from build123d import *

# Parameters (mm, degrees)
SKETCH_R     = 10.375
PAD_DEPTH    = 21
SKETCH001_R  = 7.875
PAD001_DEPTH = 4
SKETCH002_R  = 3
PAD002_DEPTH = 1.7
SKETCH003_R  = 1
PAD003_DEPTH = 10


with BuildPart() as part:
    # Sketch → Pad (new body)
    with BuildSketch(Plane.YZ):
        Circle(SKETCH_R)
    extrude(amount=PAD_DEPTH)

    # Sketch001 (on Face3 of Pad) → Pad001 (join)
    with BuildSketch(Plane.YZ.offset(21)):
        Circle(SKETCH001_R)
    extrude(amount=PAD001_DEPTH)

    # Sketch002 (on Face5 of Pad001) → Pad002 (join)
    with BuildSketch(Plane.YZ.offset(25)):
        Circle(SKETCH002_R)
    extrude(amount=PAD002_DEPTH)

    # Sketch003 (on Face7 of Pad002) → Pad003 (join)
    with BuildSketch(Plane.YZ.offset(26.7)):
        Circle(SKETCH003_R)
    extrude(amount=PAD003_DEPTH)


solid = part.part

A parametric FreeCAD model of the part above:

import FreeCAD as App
import Part
import Sketcher
from FreeCAD import Vector

doc = App.newDocument("Part")
body = doc.addObject("PartDesign::Body", "Body")

sketch1 = doc.addObject("Sketcher::SketchObject", "Sketch")
body.addObject(sketch1)
sketch1.AttachmentSupport = (doc.YZ_Plane, [""])
sketch1.MapMode = "FlatFace"
sketch1.addGeometry(Part.Circle(Vector(0, 0, 0), Vector(0, 0, 1), 10), False)
sketch1.addConstraint([
    Sketcher.Constraint("Coincident", 0, 3, -1, 1),
    Sketcher.Constraint("Diameter", 0, 20.75),
])
pad1 = doc.addObject("PartDesign::Pad", "Pad")
body.addObject(pad1)
pad1.Profile = sketch1
pad1.Length = 21

sketch2 = doc.addObject("Sketcher::SketchObject", "Sketch001")
body.addObject(sketch2)
sketch2.AttachmentSupport = (doc.YZ_Plane, [""])
sketch2.MapMode = "FlatFace"
sketch2.AttachmentOffset = App.Placement(Vector(0, 0, 21), App.Rotation())
sketch2.addGeometry(Part.Circle(Vector(0, 0, 0), Vector(0, 0, 1), 8), False)
sketch2.addConstraint([
    Sketcher.Constraint("Coincident", 0, 3, -1, 1),
    Sketcher.Constraint("Diameter", 0, 15.75),
])
pad2 = doc.addObject("PartDesign::Pad", "Pad001")
body.addObject(pad2)
pad2.Profile = sketch2
pad2.Length = 4

sketch3 = doc.addObject("Sketcher::SketchObject", "Sketch002")
body.addObject(sketch3)
sketch3.AttachmentSupport = (doc.YZ_Plane, [""])
sketch3.MapMode = "FlatFace"
sketch3.AttachmentOffset = App.Placement(Vector(0, 0, 25), App.Rotation())
sketch3.addGeometry(Part.Circle(Vector(0, 0, 0), Vector(0, 0, 1), 3), False)
sketch3.addConstraint([
    Sketcher.Constraint("Coincident", 0, 3, -1, 1),
    Sketcher.Constraint("Diameter", 0, 6.0),
])
pad3 = doc.addObject("PartDesign::Pad", "Pad002")
body.addObject(pad3)
pad3.Profile = sketch3
pad3.Length = 1.7

sketch4 = doc.addObject("Sketcher::SketchObject", "Sketch003")
body.addObject(sketch4)
sketch4.AttachmentSupport = (doc.YZ_Plane, [""])
sketch4.MapMode = "FlatFace"
sketch4.AttachmentOffset = App.Placement(Vector(0, 0, 26.7), App.Rotation())
sketch4.addGeometry(Part.Circle(Vector(0, 0, 0), Vector(0, 0, 1), 1), False)
sketch4.addConstraint([
    Sketcher.Constraint("Coincident", 0, 3, -1, 1),
    Sketcher.Constraint("Diameter", 0, 2.0),
])
pad4 = doc.addObject("PartDesign::Pad", "Pad003")
body.addObject(pad4)
pad4.Profile = sketch4
pad4.Length = 10

doc.recompute()
